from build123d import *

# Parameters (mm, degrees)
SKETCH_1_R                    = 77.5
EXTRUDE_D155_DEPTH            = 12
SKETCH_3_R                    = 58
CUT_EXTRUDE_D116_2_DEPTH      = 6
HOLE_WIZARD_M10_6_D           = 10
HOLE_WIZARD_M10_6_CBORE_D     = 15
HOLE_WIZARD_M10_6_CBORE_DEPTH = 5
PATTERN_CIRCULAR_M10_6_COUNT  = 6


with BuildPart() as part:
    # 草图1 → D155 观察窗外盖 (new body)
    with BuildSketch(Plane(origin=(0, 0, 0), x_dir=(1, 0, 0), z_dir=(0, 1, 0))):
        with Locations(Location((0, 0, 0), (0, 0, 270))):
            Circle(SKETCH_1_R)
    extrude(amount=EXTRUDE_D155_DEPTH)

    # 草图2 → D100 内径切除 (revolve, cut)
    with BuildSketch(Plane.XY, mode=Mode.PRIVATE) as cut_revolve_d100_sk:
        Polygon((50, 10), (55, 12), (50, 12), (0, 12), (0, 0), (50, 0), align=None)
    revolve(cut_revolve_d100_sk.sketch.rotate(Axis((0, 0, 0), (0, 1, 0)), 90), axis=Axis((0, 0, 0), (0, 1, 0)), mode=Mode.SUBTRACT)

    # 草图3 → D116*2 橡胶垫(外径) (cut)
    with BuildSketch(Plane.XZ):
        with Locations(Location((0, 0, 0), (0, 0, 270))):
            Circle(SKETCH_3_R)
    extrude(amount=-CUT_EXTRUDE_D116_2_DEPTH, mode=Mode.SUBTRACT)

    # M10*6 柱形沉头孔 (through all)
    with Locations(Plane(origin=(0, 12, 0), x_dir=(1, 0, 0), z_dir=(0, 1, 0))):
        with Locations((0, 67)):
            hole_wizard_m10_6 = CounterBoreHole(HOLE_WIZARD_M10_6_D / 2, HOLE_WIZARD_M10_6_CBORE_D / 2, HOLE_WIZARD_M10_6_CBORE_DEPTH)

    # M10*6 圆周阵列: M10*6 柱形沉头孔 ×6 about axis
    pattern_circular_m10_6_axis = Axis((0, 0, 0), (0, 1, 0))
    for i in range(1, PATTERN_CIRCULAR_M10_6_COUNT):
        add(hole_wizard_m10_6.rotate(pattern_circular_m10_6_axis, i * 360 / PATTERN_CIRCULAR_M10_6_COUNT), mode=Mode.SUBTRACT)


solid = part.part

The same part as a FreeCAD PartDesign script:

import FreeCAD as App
import Part
import Sketcher

V = App.Vector
Q = App.Units.Quantity

doc = App.newDocument("Part")
body = doc.addObject("PartDesign::Body", "Body")

# Sketch on XZ plane
sketch1 = body.newObject("Sketcher::SketchObject", "Sketch")
sketch1.AttachmentSupport = (doc.getObject("XZ_Plane"), [""])
sketch1.MapMode = "FlatFace"
sketch1.addGeometry(Part.Circle(V(0, 0, 0), V(0, 0, 1), 78), False)
sketch1.addConstraint([
    Sketcher.Constraint("Coincident", 0, 3, -1, 1),
    Sketcher.Constraint("Diameter", 0, Q("155 mm")),
])
pad1 = body.newObject("PartDesign::Pad", "Pad")
pad1.Profile = sketch1
pad1.Length = 12
pad1.Reversed = True

# Sketch on XY plane
sketch2 = body.newObject("Sketcher::SketchObject", "Sketch001")
sketch2.AttachmentSupport = (doc.getObject("XY_Plane"), [""])
sketch2.MapMode = "FlatFace"
sketch2.addGeometry([
    Part.LineSegment(V(50, 10, 0), V(55, 12, 0)),  # 0
    Part.LineSegment(V(55, 12, 0), V(0, 12, 0)),  # 1
    Part.LineSegment(V(0, 12, 0), V(0, 0, 0)),  # 2
    Part.LineSegment(V(0, 0, 0), V(50, 0, 0)),  # 3
    Part.LineSegment(V(50, 0, 0), V(50, 10, 0)),  # 4
], False)
sketch2.addConstraint([
    Sketcher.Constraint("Coincident", 0, 2, 1, 1),
    Sketcher.Constraint("Coincident", 1, 2, 2, 1),
    Sketcher.Constraint("Coincident", 2, 2, 3, 1),
    Sketcher.Constraint("Coincident", 3, 2, 4, 1),
    Sketcher.Constraint("Coincident", 4, 2, 0, 1),
    Sketcher.Constraint("Horizontal", 1),
    Sketcher.Constraint("Vertical", 2),
    Sketcher.Constraint("Horizontal", 3),
    Sketcher.Constraint("Vertical", 4),
    Sketcher.Constraint("Coincident", 2, 2, -1, 1),
    Sketcher.Constraint("DistanceX", 1, 2, 1, 1, Q("55 mm")),
    Sketcher.Constraint("DistanceX", 3, 1, 3, 2, Q("50 mm")),
    Sketcher.Constraint("DistanceY", 2, 2, 2, 1, Q("12 mm")),
    Sketcher.Constraint("DistanceY", 4, 1, 4, 2, Q("10 mm")),
])
groove = body.newObject("PartDesign::Groove", "Groove")
groove.Profile = sketch2
groove.ReferenceAxis = (sketch2, ["V_Axis"])
groove.Angle = 360

# Sketch on XZ plane
sketch3 = body.newObject("Sketcher::SketchObject", "Sketch002")
sketch3.AttachmentSupport = (doc.getObject("XZ_Plane"), [""])
sketch3.MapMode = "FlatFace"
sketch3.addGeometry(Part.Circle(V(0, 0, 0), V(0, 0, 1), 58), False)
sketch3.addConstraint([
    Sketcher.Constraint("Coincident", 0, 3, -1, 1),
    Sketcher.Constraint("Diameter", 0, Q("116 mm")),
])
pocket1 = body.newObject("PartDesign::Pocket", "Pocket")
pocket1.Profile = sketch3
pocket1.Length = 6

# Sketch on XZ plane
sketch4 = body.newObject("Sketcher::SketchObject", "Sketch003")
sketch4.AttachmentSupport = (doc.getObject("XZ_Plane"), [""])
sketch4.MapMode = "FlatFace"
sketch4.AttachmentOffset = App.Placement(V(0, 0, -12), App.Rotation())
sketch4.addGeometry(Part.Circle(V(0, -67, 0), V(0, 0, 1), 5), False)
sketch4.addConstraint([
    Sketcher.Constraint("PointOnObject", 0, 3, -2),
    Sketcher.Constraint("Diameter", 0, Q("10 mm")),
    Sketcher.Constraint("DistanceY", 0, 3, -1, 1, Q("67 mm")),
])
doc.recompute()
hole = body.newObject("PartDesign::Hole", "Hole")
hole.Profile = sketch4
hole.ThreadType = "None"
hole.Diameter = 10
hole.DepthType = "ThroughAll"
hole.HoleCutType = "Counterbore"
hole.HoleCutDiameter = 15
hole.HoleCutDepth = 5
hole.Reversed = True
doc.recompute()

polarpattern = body.newObject("PartDesign::PolarPattern", "PolarPattern")
polarpattern.Originals = [hole]
polarpattern.Axis = (doc.getObject("Y_Axis"), [""])
polarpattern.Angle = 360
polarpattern.Occurrences = 6
body.Tip = polarpattern

doc.recompute()
